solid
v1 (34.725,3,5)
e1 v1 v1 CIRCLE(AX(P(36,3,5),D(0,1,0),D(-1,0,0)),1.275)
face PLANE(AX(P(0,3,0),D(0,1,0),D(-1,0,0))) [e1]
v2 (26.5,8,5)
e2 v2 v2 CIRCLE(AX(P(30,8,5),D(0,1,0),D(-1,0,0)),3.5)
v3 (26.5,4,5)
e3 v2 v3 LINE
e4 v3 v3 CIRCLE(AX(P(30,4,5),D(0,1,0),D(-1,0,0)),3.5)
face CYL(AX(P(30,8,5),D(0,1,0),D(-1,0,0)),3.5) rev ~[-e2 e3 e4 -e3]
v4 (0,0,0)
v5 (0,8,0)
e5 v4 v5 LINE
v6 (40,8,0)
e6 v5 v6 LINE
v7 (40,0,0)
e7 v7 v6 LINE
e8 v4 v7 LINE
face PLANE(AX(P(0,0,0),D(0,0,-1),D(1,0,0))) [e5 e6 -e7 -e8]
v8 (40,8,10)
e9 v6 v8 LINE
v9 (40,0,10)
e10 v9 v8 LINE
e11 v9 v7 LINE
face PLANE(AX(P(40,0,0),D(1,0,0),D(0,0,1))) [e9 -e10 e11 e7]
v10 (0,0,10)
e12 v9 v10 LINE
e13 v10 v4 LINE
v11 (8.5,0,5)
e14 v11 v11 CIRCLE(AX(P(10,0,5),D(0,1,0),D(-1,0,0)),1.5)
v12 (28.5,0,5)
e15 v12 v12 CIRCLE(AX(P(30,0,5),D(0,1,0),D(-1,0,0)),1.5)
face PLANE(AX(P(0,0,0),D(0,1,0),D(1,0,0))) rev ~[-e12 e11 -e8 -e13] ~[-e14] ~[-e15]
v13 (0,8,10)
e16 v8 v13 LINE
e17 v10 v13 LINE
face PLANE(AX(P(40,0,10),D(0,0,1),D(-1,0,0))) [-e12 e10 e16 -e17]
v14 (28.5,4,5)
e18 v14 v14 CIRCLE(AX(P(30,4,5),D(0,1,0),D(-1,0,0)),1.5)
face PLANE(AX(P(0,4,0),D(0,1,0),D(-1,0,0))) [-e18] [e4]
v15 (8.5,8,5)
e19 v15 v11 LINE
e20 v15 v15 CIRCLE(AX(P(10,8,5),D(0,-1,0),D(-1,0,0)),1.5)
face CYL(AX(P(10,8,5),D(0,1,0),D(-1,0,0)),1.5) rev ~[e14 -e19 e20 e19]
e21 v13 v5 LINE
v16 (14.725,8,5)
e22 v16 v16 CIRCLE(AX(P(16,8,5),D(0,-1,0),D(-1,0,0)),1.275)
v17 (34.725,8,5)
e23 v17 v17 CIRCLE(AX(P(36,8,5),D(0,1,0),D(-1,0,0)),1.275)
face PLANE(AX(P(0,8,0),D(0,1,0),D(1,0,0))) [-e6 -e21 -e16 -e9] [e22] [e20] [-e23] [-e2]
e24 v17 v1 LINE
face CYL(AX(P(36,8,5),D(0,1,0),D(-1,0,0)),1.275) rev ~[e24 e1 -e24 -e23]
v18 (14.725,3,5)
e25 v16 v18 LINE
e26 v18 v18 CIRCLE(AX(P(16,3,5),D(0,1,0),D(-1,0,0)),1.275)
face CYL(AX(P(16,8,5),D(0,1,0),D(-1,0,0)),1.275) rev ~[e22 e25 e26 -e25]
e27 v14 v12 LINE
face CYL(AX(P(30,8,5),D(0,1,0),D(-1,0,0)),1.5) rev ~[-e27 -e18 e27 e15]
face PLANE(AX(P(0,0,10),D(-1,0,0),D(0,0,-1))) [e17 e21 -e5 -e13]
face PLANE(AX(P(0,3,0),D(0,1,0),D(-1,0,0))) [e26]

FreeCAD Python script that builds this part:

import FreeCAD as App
import Part
import Sketcher
from FreeCAD import Vector
Q = App.Units.Quantity

doc = App.newDocument("Part")
body = doc.addObject("PartDesign::Body", "Body")

# Sketch on XZ plane
sketch1 = doc.addObject("Sketcher::SketchObject", "Sketch")
body.addObject(sketch1)
sketch1.AttachmentSupport = (doc.XZ_Plane, [""])
sketch1.MapMode = "FlatFace"
sketch1.addGeometry(Part.LineSegment(Vector(40, 0, 0), Vector(0, 0, 0)), False)
sketch1.addGeometry(Part.LineSegment(Vector(0, 0, 0), Vector(0, 10, 0)), False)
sketch1.addGeometry(Part.LineSegment(Vector(0, 10, 0), Vector(40, 10, 0)), False)
sketch1.addGeometry(Part.LineSegment(Vector(40, 10, 0), Vector(40, 0, 0)), False)
sketch1.addConstraint(Sketcher.Constraint("Coincident", 0, 2, 1, 1))
sketch1.addConstraint(Sketcher.Constraint("Coincident", 1, 2, 2, 1))
sketch1.addConstraint(Sketcher.Constraint("Coincident", 2, 2, 3, 1))
sketch1.addConstraint(Sketcher.Constraint("Coincident", 3, 2, 0, 1))
sketch1.addConstraint(Sketcher.Constraint("Horizontal", 0))
sketch1.addConstraint(Sketcher.Constraint("Vertical", 1))
sketch1.addConstraint(Sketcher.Constraint("Horizontal", 2))
sketch1.addConstraint(Sketcher.Constraint("Vertical", 3))
sketch1.addConstraint(Sketcher.Constraint("Coincident", 0, 2, -1, 1))
sketch1.addConstraint(Sketcher.Constraint("DistanceX", 0, 2, 0, 1, Q("40 mm")))
sketch1.addConstraint(Sketcher.Constraint("DistanceY", 1, 1, 1, 2, Q("10 mm")))
pad1 = doc.addObject("PartDesign::Pad", "Pad")
body.addObject(pad1)
pad1.Profile = sketch1
pad1.Length = 8
pad1.Reversed = True

# Sketch on XZ plane
sketch2 = doc.addObject("Sketcher::SketchObject", "Sketch001")
body.addObject(sketch2)
sketch2.AttachmentSupport = (doc.XZ_Plane, [""])
sketch2.MapMode = "FlatFace"
sketch2.AttachmentOffset = App.Placement(Vector(0, 0, -8), App.Rotation())
sketch2.addGeometry(Part.Circle(Vector(10, 5, 0), Vector(0, 0, 1), 1.5), False)
sketch2.addGeometry(Part.Circle(Vector(30, 5, 0), Vector(0, 0, 1), 1.5), False)
sketch2.addConstraint(Sketcher.Constraint("Equal", 0, 1))
sketch2.addConstraint(Sketcher.Constraint("Horizontal", 0, 3, 1, 3))
sketch2.addConstraint(Sketcher.Constraint("Diameter", 0, Q("3 mm")))
sketch2.addConstraint(Sketcher.Constraint("DistanceX", -1, 1, 0, 3, Q("10 mm")))
sketch2.addConstraint(Sketcher.Constraint("DistanceY", -1, 1, 0, 3, Q("5 mm")))
sketch2.addConstraint(Sketcher.Constraint("DistanceX", -1, 1, 1, 3, Q("30 mm")))
pocket1 = doc.addObject("PartDesign::Pocket", "Pocket")
body.addObject(pocket1)
pocket1.Profile = sketch2
pocket1.Length = 20
pocket1.Reversed = True

# Sketch on XZ plane
sketch3 = doc.addObject("Sketcher::SketchObject", "Sketch002")
body.addObject(sketch3)
sketch3.AttachmentSupport = (doc.XZ_Plane, [""])
sketch3.MapMode = "FlatFace"
sketch3.AttachmentOffset = App.Placement(Vector(0, 0, -8), App.Rotation())
sketch3.addGeometry(Part.Circle(Vector(16, 5, 0), Vector(0, 0, 1), 1.275), False)
sketch3.addConstraint(Sketcher.Constraint("Diameter", 0, Q("2.55 mm")))
sketch3.addConstraint(Sketcher.Constraint("DistanceX", -1, 1, 0, 3, Q("16 mm")))
sketch3.addConstraint(Sketcher.Constraint("DistanceY", -1, 1, 0, 3, Q("5 mm")))
pocket2 = doc.addObject("PartDesign::Pocket", "Pocket001")
body.addObject(pocket2)
pocket2.Profile = sketch3
pocket2.Length = 5
pocket2.Reversed = True

# Sketch on XZ plane
sketch4 = doc.addObject("Sketcher::SketchObject", "Sketch003")
body.addObject(sketch4)
sketch4.AttachmentSupport = (doc.XZ_Plane, [""])
sketch4.MapMode = "FlatFace"
sketch4.AttachmentOffset = App.Placement(Vector(0, 0, -8), App.Rotation())
sketch4.addGeometry(Part.Circle(Vector(36, 5, 0), Vector(0, 0, 1), 1.275), False)
sketch4.addConstraint(Sketcher.Constraint("Diameter", 0, Q("2.55 mm")))
sketch4.addConstraint(Sketcher.Constraint("DistanceX", -1, 1, 0, 3, Q("36 mm")))
sketch4.addConstraint(Sketcher.Constraint("DistanceY", -1, 1, 0, 3, Q("5 mm")))
pocket3 = doc.addObject("PartDesign::Pocket", "Pocket002")
body.addObject(pocket3)
pocket3.Profile = sketch4
pocket3.Length = 5
pocket3.Reversed = True

# Sketch on XZ plane
sketch5 = doc.addObject("Sketcher::SketchObject", "Sketch004")
body.addObject(sketch5)
sketch5.AttachmentSupport = (doc.XZ_Plane, [""])
sketch5.MapMode = "FlatFace"
sketch5.AttachmentOffset = App.Placement(Vector(0, 0, -8), App.Rotation())
sketch5.addGeometry(Part.Circle(Vector(30, 5, 0), Vector(0, 0, 1), 3.5), False)
sketch5.addGeometry(Part.Circle(Vector(30, 5, 0), Vector(0, 0, 1), 1.5), False)
sketch5.addConstraint(Sketcher.Constraint("Coincident", 1, 3, 0, 3))
sketch5.addConstraint(Sketcher.Constraint("Diameter", 0, Q("7 mm")))
sketch5.addConstraint(Sketcher.Constraint("Diameter", 1, Q("3 mm")))
sketch5.addConstraint(Sketcher.Constraint("DistanceX", -1, 1, 0, 3, Q("30 mm")))
sketch5.addConstraint(Sketcher.Constraint("DistanceY", -1, 1, 0, 3, Q("5 mm")))
pocket4 = doc.addObject("PartDesign::Pocket", "Pocket003")
body.addObject(pocket4)
pocket4.Profile = sketch5
pocket4.Length = 4
pocket4.Reversed = True

doc.recompute()
